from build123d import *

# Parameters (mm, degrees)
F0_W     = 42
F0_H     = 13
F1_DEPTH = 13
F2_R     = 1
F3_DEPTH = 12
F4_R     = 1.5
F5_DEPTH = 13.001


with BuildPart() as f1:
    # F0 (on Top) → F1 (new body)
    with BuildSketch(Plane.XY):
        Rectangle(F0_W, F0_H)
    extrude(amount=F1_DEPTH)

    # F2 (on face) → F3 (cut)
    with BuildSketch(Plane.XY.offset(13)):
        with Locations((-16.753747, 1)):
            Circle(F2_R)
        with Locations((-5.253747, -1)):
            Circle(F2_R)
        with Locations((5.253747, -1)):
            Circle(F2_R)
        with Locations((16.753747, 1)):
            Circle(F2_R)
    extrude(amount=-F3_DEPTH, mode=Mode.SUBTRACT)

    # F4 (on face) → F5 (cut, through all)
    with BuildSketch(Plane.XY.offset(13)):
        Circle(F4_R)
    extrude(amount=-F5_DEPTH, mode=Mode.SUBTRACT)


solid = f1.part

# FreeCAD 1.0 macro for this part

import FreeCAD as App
import Part
import Sketcher

V = App.Vector

doc = App.newDocument("Part")
body = doc.addObject("PartDesign::Body", "Body")

# Sketch on XY plane
sketch1 = body.newObject("Sketcher::SketchObject", "Sketch")
sketch1.AttachmentSupport = (doc.getObject("XY_Plane"), [""])
sketch1.MapMode = "FlatFace"
sketch1.addGeometry(Part.LineSegment(V(-21, 6, 0), V(-21, -6, 0)), False)
sketch1.addGeometry(Part.LineSegment(V(-21, -6, 0), V(21, -6, 0)), False)
sketch1.addGeometry(Part.LineSegment(V(21, -6, 0), V(21, 6, 0)), False)
sketch1.addGeometry(Part.LineSegment(V(21, 6, 0), V(-21, 6, 0)), False)
sketch1.addConstraint(Sketcher.Constraint("Coincident", 0, 2, 1, 1))
sketch1.addConstraint(Sketcher.Constraint("Coincident", 1, 2, 2, 1))
sketch1.addConstraint(Sketcher.Constraint("Coincident", 2, 2, 3, 1))
sketch1.addConstraint(Sketcher.Constraint("Coincident", 3, 2, 0, 1))
sketch1.addConstraint(Sketcher.Constraint("Vertical", 0))
sketch1.addConstraint(Sketcher.Constraint("Horizontal", 1))
sketch1.addConstraint(Sketcher.Constraint("Vertical", 2))
sketch1.addConstraint(Sketcher.Constraint("Horizontal", 3))
sketch1.addConstraint(Sketcher.Constraint("Symmetric", 0, 2, 2, 2, -1, 1))
sketch1.addConstraint(Sketcher.Constraint("DistanceX", 1, 1, 1, 2, 42.0))
sketch1.addConstraint(Sketcher.Constraint("DistanceY", 0, 2, 0, 1, 13.0))
pad1 = body.newObject("PartDesign::Pad", "Pad")
pad1.Profile = sketch1
pad1.Length = 13

# Sketch on XY plane
sketch2 = body.newObject("Sketcher::SketchObject", "Sketch001")
sketch2.AttachmentSupport = (doc.getObject("XY_Plane"), [""])
sketch2.MapMode = "FlatFace"
sketch2.AttachmentOffset = App.Placement(V(0, 0, 13), App.Rotation())
sketch2.addGeometry(Part.Circle(V(-16.8, 1, 0), V(0, 0, 1), 1), False)
sketch2.addGeometry(Part.Circle(V(-5.3, -1, 0), V(0, 0, 1), 1), False)
sketch2.addGeometry(Part.Circle(V(5.3, -1, 0), V(0, 0, 1), 1), False)
sketch2.addGeometry(Part.Circle(V(16.8, 1, 0), V(0, 0, 1), 1), False)
sketch2.addConstraint(Sketcher.Constraint("Equal", 0, 1))
sketch2.addConstraint(Sketcher.Constraint("Equal", 1, 2))
sketch2.addConstraint(Sketcher.Constraint("Equal", 2, 3))
sketch2.addConstraint(Sketcher.Constraint("Symmetric", 1, 3, 2, 3, -2))
sketch2.addConstraint(Sketcher.Constraint("Symmetric", 0, 3, 3, 3, -2))
sketch2.addConstraint(Sketcher.Constraint("Diameter", 0, 2.0))
sketch2.addConstraint(Sketcher.Constraint("DistanceY", -1, 1, 0, 3, 1.0))
sketch2.addConstraint(Sketcher.Constraint("DistanceY", 1, 3, -1, 1, 1.0))
sketch2.addConstraint(Sketcher.Constraint("DistanceX", 0, 3, 1, 3, 11.5))
sketch2.addConstraint(Sketcher.Constraint("DistanceX", 0, 3, -1, 1, 16.753747))
pocket1 = body.newObject("PartDesign::Pocket", "Pocket")
pocket1.Profile = sketch2
pocket1.Length = 12

# Sketch on XY plane
sketch3 = body.newObject("Sketcher::SketchObject", "Sketch002")
sketch3.AttachmentSupport = (doc.getObject("XY_Plane"), [""])
sketch3.MapMode = "FlatFace"
sketch3.AttachmentOffset = App.Placement(V(0, 0, 13), App.Rotation())
sketch3.addGeometry(Part.Circle(V(0, 0, 0), V(0, 0, 1), 1.5), False)
sketch3.addConstraint(Sketcher.Constraint("Coincident", 0, 3, -1, 1))
sketch3.addConstraint(Sketcher.Constraint("Diameter", 0, 3.0))
pocket2 = body.newObject("PartDesign::Pocket", "Pocket001")
pocket2.Profile = sketch3
pocket2.Type = "ThroughAll"

doc.recompute()
